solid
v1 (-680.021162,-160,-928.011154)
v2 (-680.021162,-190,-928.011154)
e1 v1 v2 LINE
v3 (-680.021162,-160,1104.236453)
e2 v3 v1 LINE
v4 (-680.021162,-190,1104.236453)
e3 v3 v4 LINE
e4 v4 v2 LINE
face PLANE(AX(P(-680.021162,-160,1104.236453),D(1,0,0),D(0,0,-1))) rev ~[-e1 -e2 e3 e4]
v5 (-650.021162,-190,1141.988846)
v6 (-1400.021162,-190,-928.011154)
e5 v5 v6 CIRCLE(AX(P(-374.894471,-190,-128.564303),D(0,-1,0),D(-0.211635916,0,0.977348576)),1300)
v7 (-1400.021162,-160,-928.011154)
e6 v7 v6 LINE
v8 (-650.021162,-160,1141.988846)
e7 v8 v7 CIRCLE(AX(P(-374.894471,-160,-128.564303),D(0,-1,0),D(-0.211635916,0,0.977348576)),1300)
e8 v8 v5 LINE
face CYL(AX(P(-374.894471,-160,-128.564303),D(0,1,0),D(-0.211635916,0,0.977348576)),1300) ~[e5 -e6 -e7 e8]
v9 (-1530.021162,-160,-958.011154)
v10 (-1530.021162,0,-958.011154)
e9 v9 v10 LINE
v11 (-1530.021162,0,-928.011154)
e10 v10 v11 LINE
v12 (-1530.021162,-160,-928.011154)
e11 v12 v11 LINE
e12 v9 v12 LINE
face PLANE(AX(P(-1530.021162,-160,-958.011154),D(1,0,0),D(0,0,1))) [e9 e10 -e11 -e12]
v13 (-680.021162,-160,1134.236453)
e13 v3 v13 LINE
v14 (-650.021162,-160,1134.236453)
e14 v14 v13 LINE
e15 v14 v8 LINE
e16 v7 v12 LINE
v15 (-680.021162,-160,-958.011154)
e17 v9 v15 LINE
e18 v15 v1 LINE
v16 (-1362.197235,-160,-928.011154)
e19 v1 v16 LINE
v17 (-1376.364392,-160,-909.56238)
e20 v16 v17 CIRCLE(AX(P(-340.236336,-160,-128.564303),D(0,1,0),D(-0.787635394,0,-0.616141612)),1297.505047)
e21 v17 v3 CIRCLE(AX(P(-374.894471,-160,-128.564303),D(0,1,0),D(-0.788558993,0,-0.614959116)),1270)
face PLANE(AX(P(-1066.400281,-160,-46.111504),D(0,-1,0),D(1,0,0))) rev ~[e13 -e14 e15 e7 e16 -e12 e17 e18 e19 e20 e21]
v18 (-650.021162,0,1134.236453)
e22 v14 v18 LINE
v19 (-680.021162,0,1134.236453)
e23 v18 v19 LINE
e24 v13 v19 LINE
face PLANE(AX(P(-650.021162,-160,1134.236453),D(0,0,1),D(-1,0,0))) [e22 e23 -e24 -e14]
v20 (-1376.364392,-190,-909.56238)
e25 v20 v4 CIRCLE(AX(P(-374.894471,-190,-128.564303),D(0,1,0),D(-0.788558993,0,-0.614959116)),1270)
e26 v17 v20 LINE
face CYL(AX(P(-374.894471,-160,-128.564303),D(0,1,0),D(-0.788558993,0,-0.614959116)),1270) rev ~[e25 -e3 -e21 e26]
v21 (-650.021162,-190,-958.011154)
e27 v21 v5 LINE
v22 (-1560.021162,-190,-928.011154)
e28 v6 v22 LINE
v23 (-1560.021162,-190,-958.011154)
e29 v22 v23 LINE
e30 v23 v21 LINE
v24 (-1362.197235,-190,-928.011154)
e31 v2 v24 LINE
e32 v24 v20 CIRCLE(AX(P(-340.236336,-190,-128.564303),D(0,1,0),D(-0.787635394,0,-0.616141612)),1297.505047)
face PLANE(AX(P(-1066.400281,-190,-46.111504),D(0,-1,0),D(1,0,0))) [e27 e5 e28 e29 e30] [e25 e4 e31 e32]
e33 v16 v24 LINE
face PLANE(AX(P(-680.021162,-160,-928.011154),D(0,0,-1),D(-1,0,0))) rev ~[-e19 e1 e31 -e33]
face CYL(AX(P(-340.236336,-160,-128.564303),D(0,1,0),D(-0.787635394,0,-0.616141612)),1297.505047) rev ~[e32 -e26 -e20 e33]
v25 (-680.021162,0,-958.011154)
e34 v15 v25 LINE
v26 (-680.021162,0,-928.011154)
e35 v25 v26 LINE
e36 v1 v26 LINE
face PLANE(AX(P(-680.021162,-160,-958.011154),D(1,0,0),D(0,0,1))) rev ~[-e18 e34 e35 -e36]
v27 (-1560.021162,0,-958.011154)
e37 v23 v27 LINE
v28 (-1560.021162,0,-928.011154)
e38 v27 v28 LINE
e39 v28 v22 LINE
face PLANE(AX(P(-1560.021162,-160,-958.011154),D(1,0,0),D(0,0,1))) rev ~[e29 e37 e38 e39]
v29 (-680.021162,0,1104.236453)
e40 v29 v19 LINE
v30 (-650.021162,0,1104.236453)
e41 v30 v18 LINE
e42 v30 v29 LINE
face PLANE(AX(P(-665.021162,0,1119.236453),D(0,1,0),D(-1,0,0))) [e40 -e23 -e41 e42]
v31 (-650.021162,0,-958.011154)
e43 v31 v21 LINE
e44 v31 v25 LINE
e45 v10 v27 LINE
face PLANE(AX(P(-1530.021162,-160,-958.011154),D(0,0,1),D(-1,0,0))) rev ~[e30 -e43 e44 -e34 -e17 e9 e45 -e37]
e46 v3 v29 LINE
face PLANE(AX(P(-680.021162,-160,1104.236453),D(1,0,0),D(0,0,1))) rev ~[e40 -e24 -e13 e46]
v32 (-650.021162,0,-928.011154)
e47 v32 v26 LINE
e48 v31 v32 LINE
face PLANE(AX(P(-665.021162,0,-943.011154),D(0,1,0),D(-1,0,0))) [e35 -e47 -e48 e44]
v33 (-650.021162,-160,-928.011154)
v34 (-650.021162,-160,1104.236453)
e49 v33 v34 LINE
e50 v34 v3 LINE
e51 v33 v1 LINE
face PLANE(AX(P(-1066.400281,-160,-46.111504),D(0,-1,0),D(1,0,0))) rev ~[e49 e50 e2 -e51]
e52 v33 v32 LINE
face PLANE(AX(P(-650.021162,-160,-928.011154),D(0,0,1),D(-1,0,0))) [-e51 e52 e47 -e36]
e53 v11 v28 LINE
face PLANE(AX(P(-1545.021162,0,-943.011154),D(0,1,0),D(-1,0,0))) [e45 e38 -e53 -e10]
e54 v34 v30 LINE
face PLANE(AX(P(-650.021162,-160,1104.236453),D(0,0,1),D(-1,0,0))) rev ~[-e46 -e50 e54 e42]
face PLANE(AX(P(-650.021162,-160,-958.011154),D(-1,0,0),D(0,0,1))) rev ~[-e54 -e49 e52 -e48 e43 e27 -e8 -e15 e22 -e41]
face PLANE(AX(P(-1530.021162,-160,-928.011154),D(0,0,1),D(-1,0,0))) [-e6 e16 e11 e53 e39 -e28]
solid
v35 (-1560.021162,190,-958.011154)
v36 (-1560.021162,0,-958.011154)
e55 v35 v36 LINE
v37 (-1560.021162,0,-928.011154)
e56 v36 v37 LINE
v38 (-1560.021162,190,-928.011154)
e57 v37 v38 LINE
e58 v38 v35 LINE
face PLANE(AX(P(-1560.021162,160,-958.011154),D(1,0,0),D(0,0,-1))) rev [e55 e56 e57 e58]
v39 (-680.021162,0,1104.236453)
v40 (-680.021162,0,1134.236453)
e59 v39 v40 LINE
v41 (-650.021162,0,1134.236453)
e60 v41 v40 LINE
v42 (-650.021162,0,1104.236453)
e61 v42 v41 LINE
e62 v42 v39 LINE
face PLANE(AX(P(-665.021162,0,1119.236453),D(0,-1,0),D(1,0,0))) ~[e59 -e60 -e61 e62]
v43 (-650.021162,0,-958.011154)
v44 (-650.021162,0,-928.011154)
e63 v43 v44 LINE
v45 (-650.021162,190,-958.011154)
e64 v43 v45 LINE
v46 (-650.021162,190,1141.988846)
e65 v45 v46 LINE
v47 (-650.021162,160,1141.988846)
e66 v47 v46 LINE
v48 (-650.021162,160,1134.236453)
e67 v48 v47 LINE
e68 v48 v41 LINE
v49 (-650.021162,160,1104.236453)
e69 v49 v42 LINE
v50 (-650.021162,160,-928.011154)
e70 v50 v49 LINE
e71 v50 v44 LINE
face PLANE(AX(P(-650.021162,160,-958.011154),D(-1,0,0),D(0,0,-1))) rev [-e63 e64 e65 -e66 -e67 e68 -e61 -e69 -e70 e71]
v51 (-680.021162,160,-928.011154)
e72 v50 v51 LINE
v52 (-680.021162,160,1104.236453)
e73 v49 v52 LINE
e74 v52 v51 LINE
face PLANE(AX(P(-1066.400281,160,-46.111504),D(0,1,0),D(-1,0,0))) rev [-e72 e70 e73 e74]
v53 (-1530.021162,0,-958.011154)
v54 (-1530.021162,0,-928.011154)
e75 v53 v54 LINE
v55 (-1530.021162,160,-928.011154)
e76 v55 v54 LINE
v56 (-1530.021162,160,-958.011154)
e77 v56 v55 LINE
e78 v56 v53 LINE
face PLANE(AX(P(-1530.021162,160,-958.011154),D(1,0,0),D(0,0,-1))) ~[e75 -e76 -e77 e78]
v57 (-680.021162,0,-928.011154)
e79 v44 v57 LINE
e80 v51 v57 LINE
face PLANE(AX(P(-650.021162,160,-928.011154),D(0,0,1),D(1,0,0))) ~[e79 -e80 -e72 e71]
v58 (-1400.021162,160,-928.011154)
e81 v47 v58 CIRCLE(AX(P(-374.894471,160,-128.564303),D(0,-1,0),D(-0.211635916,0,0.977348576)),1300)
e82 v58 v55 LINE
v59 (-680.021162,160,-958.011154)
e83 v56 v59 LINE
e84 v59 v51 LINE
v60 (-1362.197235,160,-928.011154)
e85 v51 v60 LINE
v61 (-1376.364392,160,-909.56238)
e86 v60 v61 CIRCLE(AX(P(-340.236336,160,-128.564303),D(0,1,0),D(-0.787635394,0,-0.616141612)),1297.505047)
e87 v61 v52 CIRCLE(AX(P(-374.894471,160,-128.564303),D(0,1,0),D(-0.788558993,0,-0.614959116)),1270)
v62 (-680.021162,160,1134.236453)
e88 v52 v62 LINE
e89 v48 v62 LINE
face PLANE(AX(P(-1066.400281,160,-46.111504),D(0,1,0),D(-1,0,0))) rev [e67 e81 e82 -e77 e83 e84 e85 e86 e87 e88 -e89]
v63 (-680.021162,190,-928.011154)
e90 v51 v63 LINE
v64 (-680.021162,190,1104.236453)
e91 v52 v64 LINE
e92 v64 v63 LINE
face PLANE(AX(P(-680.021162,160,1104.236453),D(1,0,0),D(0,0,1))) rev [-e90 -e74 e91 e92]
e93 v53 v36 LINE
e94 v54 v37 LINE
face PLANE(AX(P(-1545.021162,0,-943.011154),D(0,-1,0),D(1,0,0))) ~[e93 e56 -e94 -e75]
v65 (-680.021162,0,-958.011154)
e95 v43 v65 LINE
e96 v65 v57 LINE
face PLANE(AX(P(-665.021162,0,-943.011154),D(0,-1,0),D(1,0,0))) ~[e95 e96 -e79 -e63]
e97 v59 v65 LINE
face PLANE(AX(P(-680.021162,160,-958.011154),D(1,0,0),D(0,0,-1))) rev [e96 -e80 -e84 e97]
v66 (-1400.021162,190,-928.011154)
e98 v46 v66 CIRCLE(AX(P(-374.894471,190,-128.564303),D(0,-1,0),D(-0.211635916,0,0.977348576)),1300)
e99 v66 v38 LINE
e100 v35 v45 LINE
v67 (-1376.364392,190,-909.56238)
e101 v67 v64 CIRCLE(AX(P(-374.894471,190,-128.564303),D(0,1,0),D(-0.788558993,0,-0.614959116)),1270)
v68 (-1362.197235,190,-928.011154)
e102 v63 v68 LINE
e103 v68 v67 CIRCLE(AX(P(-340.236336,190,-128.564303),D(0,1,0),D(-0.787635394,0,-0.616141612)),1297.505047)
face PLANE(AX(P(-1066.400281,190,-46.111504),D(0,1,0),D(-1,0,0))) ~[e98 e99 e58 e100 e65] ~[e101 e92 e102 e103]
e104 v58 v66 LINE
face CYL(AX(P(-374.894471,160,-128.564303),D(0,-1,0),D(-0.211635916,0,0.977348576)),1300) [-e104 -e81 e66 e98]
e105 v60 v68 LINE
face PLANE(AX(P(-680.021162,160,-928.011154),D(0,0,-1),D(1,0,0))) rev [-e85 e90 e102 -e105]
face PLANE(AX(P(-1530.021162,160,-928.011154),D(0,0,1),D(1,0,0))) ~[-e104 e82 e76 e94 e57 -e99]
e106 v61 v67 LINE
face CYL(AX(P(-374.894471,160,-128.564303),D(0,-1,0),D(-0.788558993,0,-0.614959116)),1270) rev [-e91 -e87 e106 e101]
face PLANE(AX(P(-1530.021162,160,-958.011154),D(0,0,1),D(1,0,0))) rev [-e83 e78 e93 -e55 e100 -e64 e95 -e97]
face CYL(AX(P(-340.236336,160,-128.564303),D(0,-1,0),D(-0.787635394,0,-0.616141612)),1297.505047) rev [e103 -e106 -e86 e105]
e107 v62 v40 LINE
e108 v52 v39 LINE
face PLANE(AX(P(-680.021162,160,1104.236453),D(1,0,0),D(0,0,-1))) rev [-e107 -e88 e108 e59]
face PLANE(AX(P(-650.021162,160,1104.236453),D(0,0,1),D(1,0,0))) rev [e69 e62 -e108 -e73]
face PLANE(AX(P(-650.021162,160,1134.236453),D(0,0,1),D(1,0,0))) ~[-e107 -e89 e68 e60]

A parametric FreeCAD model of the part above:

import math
import FreeCAD as App
import Part
import Sketcher

V = App.Vector

doc = App.newDocument("Part")
body = doc.addObject("PartDesign::Body", "Body")

sketch1 = body.newObject("Sketcher::SketchObject", "Sketch")
sketch1.AttachmentSupport = (doc.getObject("XZ_Plane"), [""])
sketch1.MapMode = "FlatFace"
sketch1.AttachmentOffset = App.Placement(V(0, 0, 160), App.Rotation())
sketch1.addGeometry([
    Part.LineSegment(V(-650, -958, 0), V(-650, 1142, 0)),
    Part.ArcOfCircle(Part.Circle(V(-375, -129, 0), V(0, 0, 1), 1300), math.radians(102), math.radians(218)),
    Part.LineSegment(V(-1400, -928, 0), V(-1560, -928, 0)),
    Part.LineSegment(V(-1560, -928, 0), V(-1560, -958, 0)),
    Part.LineSegment(V(-1560, -958, 0), V(-650, -958, 0)),
    Part.ArcOfCircle(Part.Circle(V(-340, -129, 0), V(0, 0, 1), 1298), math.radians(-142.99), math.radians(-141.97)),
    Part.ArcOfCircle(Part.Circle(V(-375, -129, 0), V(0, 0, 1), 1270), math.radians(104), math.radians(218)),
    Part.LineSegment(V(-680, 1104, 0), V(-680, -928, 0)),
    Part.LineSegment(V(-680, -928, 0), V(-1362, -928, 0)),
], False)
sketch1.addConstraint([
    Sketcher.Constraint("Coincident", 0, 2, 1, 1),
    Sketcher.Constraint("Coincident", 1, 2, 2, 1),
    Sketcher.Constraint("Coincident", 2, 2, 3, 1),
    Sketcher.Constraint("Coincident", 3, 2, 4, 1),
    Sketcher.Constraint("Coincident", 4, 2, 0, 1),
    Sketcher.Constraint("Coincident", 5, 1, 6, 2),
    Sketcher.Constraint("Coincident", 6, 1, 7, 1),
    Sketcher.Constraint("Coincident", 7, 2, 8, 1),
    Sketcher.Constraint("Coincident", 8, 2, 5, 2),
    Sketcher.Constraint("Vertical", 0),
    Sketcher.Constraint("Horizontal", 2),
    Sketcher.Constraint("Vertical", 3),
    Sketcher.Constraint("Horizontal", 4),
    Sketcher.Constraint("Vertical", 7),
    Sketcher.Constraint("Horizontal", 8),
    Sketcher.Constraint("Coincident", 6, 3, 1, 3),
    Sketcher.Constraint("Horizontal", 1, 3, 5, 3),
    Sketcher.Constraint("Horizontal", 2, 2, 7, 2),
    Sketcher.Constraint("Radius", 1, 1300.0),
    Sketcher.Constraint("Radius", 6, 1270.0),
    Sketcher.Constraint("DistanceX", 2, 2, 2, 1, 160.0),
    Sketcher.Constraint("DistanceX", 4, 1, 4, 2, 910.0),
    Sketcher.Constraint("DistanceY", 0, 1, 0, 2, 2100.0),
    Sketcher.Constraint("DistanceY", 3, 2, 3, 1, 30.0),
    Sketcher.Constraint("DistanceX", 7, 2, 4, 2, 30.0),
    Sketcher.Constraint("Radius", 5, 1297.505047),
    Sketcher.Constraint("DistanceX", 8, 2, 8, 1, 682.176073),
    Sketcher.Constraint("DistanceX", 1, 3, -1, 1, 374.894471),
    Sketcher.Constraint("DistanceY", 1, 3, -1, 1, 128.564303),
])
pad1 = body.newObject("PartDesign::Pad", "Pad")
pad1.Profile = sketch1
pad1.Length = 30

sketch2 = body.newObject("Sketcher::SketchObject", "Sketch001")
sketch2.AttachmentSupport = (doc.getObject("XZ_Plane"), [""])
sketch2.MapMode = "FlatFace"
sketch2.AttachmentOffset = App.Placement(V(0, 0, 160), App.Rotation())
sketch2.addGeometry([
    Part.LineSegment(V(-1530, -928, 0), V(-1530, -958, 0)),
    Part.LineSegment(V(-1530, -958, 0), V(-1560, -958, 0)),
    Part.LineSegment(V(-1560, -958, 0), V(-1560, -928, 0)),
    Part.LineSegment(V(-1560, -928, 0), V(-1530, -928, 0)),
    Part.LineSegment(V(-650, -928, 0), V(-650, -958, 0)),
    Part.LineSegment(V(-650, -958, 0), V(-680, -958, 0)),
    Part.LineSegment(V(-680, -958, 0), V(-680, -928, 0)),
    Part.LineSegment(V(-680, -928, 0), V(-650, -928, 0)),
    Part.LineSegment(V(-650, 1134, 0), V(-650, 1104, 0)),
    Part.LineSegment(V(-650, 1104, 0), V(-680, 1104, 0)),
    Part.LineSegment(V(-680, 1104, 0), V(-680, 1134, 0)),
    Part.LineSegment(V(-680, 1134, 0), V(-650, 1134, 0)),
], False)
sketch2.addConstraint([
    Sketcher.Constraint("Coincident", 0, 2, 1, 1),
    Sketcher.Constraint("Coincident", 1, 2, 2, 1),
    Sketcher.Constraint("Coincident", 2, 2, 3, 1),
    Sketcher.Constraint("Coincident", 3, 2, 0, 1),
    Sketcher.Constraint("Coincident", 4, 2, 5, 1),
    Sketcher.Constraint("Coincident", 5, 2, 6, 1),
    Sketcher.Constraint("Coincident", 6, 2, 7, 1),
    Sketcher.Constraint("Coincident", 7, 2, 4, 1),
    Sketcher.Constraint("Coincident", 8, 2, 9, 1),
    Sketcher.Constraint("Coincident", 9, 2, 10, 1),
    Sketcher.Constraint("Coincident", 10, 2, 11, 1),
    Sketcher.Constraint("Coincident", 11, 2, 8, 1),
    Sketcher.Constraint("Vertical", 0),
    Sketcher.Constraint("Horizontal", 1),
    Sketcher.Constraint("Vertical", 2),
    Sketcher.Constraint("Horizontal", 3),
    Sketcher.Constraint("Vertical", 4),
    Sketcher.Constraint("Horizontal", 5),
    Sketcher.Constraint("Vertical", 6),
    Sketcher.Constraint("Horizontal", 7),
    Sketcher.Constraint("Vertical", 8),
    Sketcher.Constraint("Horizontal", 9),
    Sketcher.Constraint("Vertical", 10),
    Sketcher.Constraint("Horizontal", 11),
    Sketcher.Constraint("Horizontal", 1, 2, 4, 2),
    Sketcher.Constraint("Horizontal", 3, 2, 6, 2),
    Sketcher.Constraint("Vertical", 7, 2, 8, 2),
    Sketcher.Constraint("Vertical", 6, 2, 9, 2),
    Sketcher.Constraint("Equal", 3, 5),
    Sketcher.Constraint("Equal", 11, 0),
    Sketcher.Constraint("Equal", 6, 8),
    Sketcher.Constraint("DistanceX", 1, 2, 1, 1, 30.0),
    Sketcher.Constraint("DistanceX", 0, 2, 4, 2, 880.0),
    Sketcher.Constraint("DistanceX", 0, 2, -1, 1, 1530.021162),
    Sketcher.Constraint("DistanceY", 0, 2, -1, 1, 958.011154),
    Sketcher.Constraint("DistanceY", -1, 1, 8, 2, 1104.236453),
])
pad2 = body.newObject("PartDesign::Pad", "Pad001")
pad2.Profile = sketch2
pad2.Length = 160
pad2.Reversed = True
body2 = doc.addObject("PartDesign::Body", "Body001")
doc.recompute()

mirroring = doc.addObject("Part::Mirroring", "Mirroring")
mirroring.Source = body
mirroring.Base = V(0, 0, 0)
mirroring.Normal = V(0, -1, 0)
body2.BaseFeature = mirroring
doc.recompute()
mirroring.Visibility = False

doc.recompute()
